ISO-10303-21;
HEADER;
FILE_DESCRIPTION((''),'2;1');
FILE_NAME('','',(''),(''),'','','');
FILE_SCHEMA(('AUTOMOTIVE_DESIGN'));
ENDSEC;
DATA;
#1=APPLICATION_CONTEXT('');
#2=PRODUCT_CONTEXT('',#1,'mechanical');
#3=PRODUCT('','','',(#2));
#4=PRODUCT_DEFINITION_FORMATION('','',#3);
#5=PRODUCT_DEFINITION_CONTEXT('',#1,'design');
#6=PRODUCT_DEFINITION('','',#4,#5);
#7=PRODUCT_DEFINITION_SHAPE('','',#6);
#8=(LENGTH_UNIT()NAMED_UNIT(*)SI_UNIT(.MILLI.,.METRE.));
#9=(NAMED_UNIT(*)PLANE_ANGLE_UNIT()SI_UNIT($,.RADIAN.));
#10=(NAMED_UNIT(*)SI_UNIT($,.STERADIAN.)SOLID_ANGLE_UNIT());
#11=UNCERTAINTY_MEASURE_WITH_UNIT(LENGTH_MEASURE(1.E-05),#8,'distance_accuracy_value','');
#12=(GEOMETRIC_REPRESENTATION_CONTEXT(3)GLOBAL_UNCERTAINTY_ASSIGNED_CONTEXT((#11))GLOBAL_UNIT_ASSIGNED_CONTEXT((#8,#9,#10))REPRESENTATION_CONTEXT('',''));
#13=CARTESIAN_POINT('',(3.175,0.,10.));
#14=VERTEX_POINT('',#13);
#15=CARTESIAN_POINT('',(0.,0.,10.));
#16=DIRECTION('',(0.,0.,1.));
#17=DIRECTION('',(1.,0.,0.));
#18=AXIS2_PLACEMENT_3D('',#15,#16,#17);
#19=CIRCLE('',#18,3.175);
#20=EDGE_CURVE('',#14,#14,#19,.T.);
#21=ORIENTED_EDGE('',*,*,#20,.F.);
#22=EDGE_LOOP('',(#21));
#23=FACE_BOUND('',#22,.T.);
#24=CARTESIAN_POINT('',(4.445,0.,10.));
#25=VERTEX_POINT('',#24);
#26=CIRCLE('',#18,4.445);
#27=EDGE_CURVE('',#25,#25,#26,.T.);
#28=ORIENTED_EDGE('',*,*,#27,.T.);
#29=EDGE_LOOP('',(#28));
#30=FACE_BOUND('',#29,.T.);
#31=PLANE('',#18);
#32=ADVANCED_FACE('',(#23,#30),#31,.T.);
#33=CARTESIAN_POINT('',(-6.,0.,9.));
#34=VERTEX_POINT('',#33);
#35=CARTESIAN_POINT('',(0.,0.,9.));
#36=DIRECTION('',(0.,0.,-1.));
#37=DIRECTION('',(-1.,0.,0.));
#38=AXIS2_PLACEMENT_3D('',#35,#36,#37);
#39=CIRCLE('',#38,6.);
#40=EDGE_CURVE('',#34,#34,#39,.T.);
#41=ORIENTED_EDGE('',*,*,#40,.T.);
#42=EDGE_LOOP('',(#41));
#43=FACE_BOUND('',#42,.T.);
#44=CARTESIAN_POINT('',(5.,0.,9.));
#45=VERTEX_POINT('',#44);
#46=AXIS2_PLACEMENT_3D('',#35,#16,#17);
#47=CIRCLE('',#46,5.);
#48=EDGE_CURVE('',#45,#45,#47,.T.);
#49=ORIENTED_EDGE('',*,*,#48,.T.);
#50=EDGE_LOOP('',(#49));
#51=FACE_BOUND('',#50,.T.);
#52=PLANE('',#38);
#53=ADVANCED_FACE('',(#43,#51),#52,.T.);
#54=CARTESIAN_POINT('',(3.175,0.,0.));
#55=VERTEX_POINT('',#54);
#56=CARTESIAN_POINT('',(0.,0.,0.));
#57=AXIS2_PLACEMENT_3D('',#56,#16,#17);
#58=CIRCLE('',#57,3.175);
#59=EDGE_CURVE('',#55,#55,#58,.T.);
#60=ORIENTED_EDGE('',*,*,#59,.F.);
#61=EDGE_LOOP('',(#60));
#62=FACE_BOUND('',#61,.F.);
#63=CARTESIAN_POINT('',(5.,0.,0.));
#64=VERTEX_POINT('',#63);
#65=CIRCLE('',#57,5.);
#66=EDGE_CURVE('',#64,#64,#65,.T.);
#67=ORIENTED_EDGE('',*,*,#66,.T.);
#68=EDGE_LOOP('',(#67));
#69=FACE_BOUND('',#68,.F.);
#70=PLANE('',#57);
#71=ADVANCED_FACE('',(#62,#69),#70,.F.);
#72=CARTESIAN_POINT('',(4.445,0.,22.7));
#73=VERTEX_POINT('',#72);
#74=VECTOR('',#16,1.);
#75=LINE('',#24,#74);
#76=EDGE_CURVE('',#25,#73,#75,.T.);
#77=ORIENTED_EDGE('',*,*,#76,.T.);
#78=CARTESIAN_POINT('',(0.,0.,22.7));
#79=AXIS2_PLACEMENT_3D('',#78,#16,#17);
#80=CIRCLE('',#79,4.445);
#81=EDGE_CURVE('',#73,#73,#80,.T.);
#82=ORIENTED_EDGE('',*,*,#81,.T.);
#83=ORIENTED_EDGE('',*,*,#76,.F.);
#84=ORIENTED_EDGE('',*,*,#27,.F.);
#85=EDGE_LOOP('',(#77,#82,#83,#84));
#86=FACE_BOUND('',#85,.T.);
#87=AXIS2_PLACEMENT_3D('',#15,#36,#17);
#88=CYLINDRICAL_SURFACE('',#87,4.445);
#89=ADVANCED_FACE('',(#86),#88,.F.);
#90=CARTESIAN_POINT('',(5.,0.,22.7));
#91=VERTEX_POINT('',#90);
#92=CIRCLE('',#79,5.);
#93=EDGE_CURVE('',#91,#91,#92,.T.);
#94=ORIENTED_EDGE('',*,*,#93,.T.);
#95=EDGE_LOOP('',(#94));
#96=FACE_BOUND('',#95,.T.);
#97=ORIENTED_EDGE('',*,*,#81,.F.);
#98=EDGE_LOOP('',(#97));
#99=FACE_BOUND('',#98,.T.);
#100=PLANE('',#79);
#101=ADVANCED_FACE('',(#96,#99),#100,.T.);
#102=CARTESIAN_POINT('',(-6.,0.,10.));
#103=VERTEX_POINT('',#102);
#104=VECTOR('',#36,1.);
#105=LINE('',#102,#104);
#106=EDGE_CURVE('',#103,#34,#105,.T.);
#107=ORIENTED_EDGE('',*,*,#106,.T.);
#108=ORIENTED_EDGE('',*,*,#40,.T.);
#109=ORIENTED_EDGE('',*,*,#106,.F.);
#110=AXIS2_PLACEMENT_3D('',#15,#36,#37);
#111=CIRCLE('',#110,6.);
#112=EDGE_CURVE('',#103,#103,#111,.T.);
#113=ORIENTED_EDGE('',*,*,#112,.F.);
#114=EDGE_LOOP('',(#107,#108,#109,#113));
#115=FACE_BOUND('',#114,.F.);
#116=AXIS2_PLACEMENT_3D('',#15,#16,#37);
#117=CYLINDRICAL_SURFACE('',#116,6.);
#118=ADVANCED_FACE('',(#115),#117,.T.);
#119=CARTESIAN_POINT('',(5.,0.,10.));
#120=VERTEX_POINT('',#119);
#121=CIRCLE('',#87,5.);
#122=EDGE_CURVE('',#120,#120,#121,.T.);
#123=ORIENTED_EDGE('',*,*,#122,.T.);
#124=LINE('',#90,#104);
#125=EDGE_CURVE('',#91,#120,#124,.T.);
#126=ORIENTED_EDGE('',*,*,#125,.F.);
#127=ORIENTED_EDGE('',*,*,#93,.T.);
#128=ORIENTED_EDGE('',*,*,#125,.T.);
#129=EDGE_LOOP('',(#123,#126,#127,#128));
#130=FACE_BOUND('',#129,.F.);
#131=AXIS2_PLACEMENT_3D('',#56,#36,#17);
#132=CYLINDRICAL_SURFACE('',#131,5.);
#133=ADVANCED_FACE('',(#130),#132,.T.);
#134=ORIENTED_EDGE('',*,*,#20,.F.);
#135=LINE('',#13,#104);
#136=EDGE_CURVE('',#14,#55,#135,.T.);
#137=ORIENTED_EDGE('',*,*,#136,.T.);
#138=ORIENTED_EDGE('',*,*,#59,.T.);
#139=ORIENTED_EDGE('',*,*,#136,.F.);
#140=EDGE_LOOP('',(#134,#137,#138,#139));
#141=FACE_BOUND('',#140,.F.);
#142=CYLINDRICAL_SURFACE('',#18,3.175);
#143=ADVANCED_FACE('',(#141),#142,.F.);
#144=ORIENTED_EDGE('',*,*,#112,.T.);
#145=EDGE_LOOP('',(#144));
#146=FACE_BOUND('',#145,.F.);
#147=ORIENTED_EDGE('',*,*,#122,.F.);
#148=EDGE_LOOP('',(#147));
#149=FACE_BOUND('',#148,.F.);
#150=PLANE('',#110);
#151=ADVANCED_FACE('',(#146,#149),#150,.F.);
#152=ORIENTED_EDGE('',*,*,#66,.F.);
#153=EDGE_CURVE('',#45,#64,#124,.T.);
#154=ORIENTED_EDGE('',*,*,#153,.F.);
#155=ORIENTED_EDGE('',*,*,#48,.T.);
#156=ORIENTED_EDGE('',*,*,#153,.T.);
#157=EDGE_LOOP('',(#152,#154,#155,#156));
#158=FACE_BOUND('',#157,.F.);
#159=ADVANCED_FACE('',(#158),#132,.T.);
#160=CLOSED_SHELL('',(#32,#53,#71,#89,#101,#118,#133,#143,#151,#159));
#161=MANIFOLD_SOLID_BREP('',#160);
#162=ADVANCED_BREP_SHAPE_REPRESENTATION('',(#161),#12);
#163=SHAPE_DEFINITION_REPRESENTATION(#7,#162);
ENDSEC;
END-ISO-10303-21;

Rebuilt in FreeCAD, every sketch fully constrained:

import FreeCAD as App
import Part
import Sketcher

V = App.Vector
Q = App.Units.Quantity

doc = App.newDocument("Part")
body = doc.addObject("PartDesign::Body", "Body")

# Sketch on XY plane
sketch1 = body.newObject("Sketcher::SketchObject", "Sketch")
sketch1.AttachmentSupport = (doc.getObject("XY_Plane"), [""])
sketch1.MapMode = "FlatFace"
sketch1.addGeometry(Part.Circle(V(0, 0, 0), V(0, 0, 1), 5), False)
sketch1.addConstraint([
    Sketcher.Constraint("Coincident", 0, 3, -1, 1),
    Sketcher.Constraint("Diameter", 0, Q("0.3937 in")),
])
pad1 = body.newObject("PartDesign::Pad", "Pad")
pad1.Profile = sketch1
pad1.Length = Q("0.3937008 in")

# Sketch on XY plane
sketch2 = body.newObject("Sketcher::SketchObject", "Sketch001")
sketch2.AttachmentSupport = (doc.getObject("XY_Plane"), [""])
sketch2.MapMode = "FlatFace"
sketch2.AttachmentOffset = App.Placement(V(0, 0, 0.3937008 * 25.4), App.Rotation())
sketch2.addGeometry([
    Part.Circle(V(0, 0, 0), V(0, 0, 1), 5),
    Part.Circle(V(0, 0, 0), V(0, 0, 1), 4.4),
], False)
sketch2.addConstraint([
    Sketcher.Constraint("Coincident", 0, 3, -1, 1),
    Sketcher.Constraint("Coincident", 1, 3, -1, 1),
    Sketcher.Constraint("Diameter", 1, Q("0.35 in")),
    Sketcher.Constraint("Diameter", 0, Q("0.3937 in")),
])
pad2 = body.newObject("PartDesign::Pad", "Pad001")
pad2.Profile = sketch2
pad2.Length = Q("0.5 in")

# Sketch on XY plane
sketch3 = body.newObject("Sketcher::SketchObject", "Sketch002")
sketch3.AttachmentSupport = (doc.getObject("XY_Plane"), [""])
sketch3.MapMode = "FlatFace"
sketch3.AttachmentOffset = App.Placement(V(0, 0, 0.3937008 * 25.4), App.Rotation())
sketch3.addGeometry(Part.Circle(V(0, 0, 0), V(0, 0, 1), 3.2), False)
sketch3.addConstraint([
    Sketcher.Constraint("Coincident", 0, 3, -1, 1),
    Sketcher.Constraint("Diameter", 0, Q("0.25 in")),
])
pocket1 = body.newObject("PartDesign::Pocket", "Pocket")
pocket1.Profile = sketch3
pocket1.Length = Q("0.5 in")

# Sketch on XY plane
sketch4 = body.newObject("Sketcher::SketchObject", "Sketch003")
sketch4.AttachmentSupport = (doc.getObject("XY_Plane"), [""])
sketch4.MapMode = "FlatFace"
sketch4.AttachmentOffset = App.Placement(V(0, 0, 0.3937008 * 25.4), App.Rotation())
sketch4.addGeometry([
    Part.Circle(V(0, 0, 0), V(0, 0, 1), 6),
    Part.Circle(V(0, 0, 0), V(0, 0, 1), 5),
], False)
sketch4.addConstraint([
    Sketcher.Constraint("Coincident", 0, 3, -1, 1),
    Sketcher.Constraint("Coincident", 1, 3, -1, 1),
    Sketcher.Constraint("Diameter", 0, 12.0),
    Sketcher.Constraint("Diameter", 1, Q("0.3937 in")),
])
pad3 = body.newObject("PartDesign::Pad", "Pad002")
pad3.Profile = sketch4
pad3.Length = 1
pad3.Reversed = True

doc.recompute()
